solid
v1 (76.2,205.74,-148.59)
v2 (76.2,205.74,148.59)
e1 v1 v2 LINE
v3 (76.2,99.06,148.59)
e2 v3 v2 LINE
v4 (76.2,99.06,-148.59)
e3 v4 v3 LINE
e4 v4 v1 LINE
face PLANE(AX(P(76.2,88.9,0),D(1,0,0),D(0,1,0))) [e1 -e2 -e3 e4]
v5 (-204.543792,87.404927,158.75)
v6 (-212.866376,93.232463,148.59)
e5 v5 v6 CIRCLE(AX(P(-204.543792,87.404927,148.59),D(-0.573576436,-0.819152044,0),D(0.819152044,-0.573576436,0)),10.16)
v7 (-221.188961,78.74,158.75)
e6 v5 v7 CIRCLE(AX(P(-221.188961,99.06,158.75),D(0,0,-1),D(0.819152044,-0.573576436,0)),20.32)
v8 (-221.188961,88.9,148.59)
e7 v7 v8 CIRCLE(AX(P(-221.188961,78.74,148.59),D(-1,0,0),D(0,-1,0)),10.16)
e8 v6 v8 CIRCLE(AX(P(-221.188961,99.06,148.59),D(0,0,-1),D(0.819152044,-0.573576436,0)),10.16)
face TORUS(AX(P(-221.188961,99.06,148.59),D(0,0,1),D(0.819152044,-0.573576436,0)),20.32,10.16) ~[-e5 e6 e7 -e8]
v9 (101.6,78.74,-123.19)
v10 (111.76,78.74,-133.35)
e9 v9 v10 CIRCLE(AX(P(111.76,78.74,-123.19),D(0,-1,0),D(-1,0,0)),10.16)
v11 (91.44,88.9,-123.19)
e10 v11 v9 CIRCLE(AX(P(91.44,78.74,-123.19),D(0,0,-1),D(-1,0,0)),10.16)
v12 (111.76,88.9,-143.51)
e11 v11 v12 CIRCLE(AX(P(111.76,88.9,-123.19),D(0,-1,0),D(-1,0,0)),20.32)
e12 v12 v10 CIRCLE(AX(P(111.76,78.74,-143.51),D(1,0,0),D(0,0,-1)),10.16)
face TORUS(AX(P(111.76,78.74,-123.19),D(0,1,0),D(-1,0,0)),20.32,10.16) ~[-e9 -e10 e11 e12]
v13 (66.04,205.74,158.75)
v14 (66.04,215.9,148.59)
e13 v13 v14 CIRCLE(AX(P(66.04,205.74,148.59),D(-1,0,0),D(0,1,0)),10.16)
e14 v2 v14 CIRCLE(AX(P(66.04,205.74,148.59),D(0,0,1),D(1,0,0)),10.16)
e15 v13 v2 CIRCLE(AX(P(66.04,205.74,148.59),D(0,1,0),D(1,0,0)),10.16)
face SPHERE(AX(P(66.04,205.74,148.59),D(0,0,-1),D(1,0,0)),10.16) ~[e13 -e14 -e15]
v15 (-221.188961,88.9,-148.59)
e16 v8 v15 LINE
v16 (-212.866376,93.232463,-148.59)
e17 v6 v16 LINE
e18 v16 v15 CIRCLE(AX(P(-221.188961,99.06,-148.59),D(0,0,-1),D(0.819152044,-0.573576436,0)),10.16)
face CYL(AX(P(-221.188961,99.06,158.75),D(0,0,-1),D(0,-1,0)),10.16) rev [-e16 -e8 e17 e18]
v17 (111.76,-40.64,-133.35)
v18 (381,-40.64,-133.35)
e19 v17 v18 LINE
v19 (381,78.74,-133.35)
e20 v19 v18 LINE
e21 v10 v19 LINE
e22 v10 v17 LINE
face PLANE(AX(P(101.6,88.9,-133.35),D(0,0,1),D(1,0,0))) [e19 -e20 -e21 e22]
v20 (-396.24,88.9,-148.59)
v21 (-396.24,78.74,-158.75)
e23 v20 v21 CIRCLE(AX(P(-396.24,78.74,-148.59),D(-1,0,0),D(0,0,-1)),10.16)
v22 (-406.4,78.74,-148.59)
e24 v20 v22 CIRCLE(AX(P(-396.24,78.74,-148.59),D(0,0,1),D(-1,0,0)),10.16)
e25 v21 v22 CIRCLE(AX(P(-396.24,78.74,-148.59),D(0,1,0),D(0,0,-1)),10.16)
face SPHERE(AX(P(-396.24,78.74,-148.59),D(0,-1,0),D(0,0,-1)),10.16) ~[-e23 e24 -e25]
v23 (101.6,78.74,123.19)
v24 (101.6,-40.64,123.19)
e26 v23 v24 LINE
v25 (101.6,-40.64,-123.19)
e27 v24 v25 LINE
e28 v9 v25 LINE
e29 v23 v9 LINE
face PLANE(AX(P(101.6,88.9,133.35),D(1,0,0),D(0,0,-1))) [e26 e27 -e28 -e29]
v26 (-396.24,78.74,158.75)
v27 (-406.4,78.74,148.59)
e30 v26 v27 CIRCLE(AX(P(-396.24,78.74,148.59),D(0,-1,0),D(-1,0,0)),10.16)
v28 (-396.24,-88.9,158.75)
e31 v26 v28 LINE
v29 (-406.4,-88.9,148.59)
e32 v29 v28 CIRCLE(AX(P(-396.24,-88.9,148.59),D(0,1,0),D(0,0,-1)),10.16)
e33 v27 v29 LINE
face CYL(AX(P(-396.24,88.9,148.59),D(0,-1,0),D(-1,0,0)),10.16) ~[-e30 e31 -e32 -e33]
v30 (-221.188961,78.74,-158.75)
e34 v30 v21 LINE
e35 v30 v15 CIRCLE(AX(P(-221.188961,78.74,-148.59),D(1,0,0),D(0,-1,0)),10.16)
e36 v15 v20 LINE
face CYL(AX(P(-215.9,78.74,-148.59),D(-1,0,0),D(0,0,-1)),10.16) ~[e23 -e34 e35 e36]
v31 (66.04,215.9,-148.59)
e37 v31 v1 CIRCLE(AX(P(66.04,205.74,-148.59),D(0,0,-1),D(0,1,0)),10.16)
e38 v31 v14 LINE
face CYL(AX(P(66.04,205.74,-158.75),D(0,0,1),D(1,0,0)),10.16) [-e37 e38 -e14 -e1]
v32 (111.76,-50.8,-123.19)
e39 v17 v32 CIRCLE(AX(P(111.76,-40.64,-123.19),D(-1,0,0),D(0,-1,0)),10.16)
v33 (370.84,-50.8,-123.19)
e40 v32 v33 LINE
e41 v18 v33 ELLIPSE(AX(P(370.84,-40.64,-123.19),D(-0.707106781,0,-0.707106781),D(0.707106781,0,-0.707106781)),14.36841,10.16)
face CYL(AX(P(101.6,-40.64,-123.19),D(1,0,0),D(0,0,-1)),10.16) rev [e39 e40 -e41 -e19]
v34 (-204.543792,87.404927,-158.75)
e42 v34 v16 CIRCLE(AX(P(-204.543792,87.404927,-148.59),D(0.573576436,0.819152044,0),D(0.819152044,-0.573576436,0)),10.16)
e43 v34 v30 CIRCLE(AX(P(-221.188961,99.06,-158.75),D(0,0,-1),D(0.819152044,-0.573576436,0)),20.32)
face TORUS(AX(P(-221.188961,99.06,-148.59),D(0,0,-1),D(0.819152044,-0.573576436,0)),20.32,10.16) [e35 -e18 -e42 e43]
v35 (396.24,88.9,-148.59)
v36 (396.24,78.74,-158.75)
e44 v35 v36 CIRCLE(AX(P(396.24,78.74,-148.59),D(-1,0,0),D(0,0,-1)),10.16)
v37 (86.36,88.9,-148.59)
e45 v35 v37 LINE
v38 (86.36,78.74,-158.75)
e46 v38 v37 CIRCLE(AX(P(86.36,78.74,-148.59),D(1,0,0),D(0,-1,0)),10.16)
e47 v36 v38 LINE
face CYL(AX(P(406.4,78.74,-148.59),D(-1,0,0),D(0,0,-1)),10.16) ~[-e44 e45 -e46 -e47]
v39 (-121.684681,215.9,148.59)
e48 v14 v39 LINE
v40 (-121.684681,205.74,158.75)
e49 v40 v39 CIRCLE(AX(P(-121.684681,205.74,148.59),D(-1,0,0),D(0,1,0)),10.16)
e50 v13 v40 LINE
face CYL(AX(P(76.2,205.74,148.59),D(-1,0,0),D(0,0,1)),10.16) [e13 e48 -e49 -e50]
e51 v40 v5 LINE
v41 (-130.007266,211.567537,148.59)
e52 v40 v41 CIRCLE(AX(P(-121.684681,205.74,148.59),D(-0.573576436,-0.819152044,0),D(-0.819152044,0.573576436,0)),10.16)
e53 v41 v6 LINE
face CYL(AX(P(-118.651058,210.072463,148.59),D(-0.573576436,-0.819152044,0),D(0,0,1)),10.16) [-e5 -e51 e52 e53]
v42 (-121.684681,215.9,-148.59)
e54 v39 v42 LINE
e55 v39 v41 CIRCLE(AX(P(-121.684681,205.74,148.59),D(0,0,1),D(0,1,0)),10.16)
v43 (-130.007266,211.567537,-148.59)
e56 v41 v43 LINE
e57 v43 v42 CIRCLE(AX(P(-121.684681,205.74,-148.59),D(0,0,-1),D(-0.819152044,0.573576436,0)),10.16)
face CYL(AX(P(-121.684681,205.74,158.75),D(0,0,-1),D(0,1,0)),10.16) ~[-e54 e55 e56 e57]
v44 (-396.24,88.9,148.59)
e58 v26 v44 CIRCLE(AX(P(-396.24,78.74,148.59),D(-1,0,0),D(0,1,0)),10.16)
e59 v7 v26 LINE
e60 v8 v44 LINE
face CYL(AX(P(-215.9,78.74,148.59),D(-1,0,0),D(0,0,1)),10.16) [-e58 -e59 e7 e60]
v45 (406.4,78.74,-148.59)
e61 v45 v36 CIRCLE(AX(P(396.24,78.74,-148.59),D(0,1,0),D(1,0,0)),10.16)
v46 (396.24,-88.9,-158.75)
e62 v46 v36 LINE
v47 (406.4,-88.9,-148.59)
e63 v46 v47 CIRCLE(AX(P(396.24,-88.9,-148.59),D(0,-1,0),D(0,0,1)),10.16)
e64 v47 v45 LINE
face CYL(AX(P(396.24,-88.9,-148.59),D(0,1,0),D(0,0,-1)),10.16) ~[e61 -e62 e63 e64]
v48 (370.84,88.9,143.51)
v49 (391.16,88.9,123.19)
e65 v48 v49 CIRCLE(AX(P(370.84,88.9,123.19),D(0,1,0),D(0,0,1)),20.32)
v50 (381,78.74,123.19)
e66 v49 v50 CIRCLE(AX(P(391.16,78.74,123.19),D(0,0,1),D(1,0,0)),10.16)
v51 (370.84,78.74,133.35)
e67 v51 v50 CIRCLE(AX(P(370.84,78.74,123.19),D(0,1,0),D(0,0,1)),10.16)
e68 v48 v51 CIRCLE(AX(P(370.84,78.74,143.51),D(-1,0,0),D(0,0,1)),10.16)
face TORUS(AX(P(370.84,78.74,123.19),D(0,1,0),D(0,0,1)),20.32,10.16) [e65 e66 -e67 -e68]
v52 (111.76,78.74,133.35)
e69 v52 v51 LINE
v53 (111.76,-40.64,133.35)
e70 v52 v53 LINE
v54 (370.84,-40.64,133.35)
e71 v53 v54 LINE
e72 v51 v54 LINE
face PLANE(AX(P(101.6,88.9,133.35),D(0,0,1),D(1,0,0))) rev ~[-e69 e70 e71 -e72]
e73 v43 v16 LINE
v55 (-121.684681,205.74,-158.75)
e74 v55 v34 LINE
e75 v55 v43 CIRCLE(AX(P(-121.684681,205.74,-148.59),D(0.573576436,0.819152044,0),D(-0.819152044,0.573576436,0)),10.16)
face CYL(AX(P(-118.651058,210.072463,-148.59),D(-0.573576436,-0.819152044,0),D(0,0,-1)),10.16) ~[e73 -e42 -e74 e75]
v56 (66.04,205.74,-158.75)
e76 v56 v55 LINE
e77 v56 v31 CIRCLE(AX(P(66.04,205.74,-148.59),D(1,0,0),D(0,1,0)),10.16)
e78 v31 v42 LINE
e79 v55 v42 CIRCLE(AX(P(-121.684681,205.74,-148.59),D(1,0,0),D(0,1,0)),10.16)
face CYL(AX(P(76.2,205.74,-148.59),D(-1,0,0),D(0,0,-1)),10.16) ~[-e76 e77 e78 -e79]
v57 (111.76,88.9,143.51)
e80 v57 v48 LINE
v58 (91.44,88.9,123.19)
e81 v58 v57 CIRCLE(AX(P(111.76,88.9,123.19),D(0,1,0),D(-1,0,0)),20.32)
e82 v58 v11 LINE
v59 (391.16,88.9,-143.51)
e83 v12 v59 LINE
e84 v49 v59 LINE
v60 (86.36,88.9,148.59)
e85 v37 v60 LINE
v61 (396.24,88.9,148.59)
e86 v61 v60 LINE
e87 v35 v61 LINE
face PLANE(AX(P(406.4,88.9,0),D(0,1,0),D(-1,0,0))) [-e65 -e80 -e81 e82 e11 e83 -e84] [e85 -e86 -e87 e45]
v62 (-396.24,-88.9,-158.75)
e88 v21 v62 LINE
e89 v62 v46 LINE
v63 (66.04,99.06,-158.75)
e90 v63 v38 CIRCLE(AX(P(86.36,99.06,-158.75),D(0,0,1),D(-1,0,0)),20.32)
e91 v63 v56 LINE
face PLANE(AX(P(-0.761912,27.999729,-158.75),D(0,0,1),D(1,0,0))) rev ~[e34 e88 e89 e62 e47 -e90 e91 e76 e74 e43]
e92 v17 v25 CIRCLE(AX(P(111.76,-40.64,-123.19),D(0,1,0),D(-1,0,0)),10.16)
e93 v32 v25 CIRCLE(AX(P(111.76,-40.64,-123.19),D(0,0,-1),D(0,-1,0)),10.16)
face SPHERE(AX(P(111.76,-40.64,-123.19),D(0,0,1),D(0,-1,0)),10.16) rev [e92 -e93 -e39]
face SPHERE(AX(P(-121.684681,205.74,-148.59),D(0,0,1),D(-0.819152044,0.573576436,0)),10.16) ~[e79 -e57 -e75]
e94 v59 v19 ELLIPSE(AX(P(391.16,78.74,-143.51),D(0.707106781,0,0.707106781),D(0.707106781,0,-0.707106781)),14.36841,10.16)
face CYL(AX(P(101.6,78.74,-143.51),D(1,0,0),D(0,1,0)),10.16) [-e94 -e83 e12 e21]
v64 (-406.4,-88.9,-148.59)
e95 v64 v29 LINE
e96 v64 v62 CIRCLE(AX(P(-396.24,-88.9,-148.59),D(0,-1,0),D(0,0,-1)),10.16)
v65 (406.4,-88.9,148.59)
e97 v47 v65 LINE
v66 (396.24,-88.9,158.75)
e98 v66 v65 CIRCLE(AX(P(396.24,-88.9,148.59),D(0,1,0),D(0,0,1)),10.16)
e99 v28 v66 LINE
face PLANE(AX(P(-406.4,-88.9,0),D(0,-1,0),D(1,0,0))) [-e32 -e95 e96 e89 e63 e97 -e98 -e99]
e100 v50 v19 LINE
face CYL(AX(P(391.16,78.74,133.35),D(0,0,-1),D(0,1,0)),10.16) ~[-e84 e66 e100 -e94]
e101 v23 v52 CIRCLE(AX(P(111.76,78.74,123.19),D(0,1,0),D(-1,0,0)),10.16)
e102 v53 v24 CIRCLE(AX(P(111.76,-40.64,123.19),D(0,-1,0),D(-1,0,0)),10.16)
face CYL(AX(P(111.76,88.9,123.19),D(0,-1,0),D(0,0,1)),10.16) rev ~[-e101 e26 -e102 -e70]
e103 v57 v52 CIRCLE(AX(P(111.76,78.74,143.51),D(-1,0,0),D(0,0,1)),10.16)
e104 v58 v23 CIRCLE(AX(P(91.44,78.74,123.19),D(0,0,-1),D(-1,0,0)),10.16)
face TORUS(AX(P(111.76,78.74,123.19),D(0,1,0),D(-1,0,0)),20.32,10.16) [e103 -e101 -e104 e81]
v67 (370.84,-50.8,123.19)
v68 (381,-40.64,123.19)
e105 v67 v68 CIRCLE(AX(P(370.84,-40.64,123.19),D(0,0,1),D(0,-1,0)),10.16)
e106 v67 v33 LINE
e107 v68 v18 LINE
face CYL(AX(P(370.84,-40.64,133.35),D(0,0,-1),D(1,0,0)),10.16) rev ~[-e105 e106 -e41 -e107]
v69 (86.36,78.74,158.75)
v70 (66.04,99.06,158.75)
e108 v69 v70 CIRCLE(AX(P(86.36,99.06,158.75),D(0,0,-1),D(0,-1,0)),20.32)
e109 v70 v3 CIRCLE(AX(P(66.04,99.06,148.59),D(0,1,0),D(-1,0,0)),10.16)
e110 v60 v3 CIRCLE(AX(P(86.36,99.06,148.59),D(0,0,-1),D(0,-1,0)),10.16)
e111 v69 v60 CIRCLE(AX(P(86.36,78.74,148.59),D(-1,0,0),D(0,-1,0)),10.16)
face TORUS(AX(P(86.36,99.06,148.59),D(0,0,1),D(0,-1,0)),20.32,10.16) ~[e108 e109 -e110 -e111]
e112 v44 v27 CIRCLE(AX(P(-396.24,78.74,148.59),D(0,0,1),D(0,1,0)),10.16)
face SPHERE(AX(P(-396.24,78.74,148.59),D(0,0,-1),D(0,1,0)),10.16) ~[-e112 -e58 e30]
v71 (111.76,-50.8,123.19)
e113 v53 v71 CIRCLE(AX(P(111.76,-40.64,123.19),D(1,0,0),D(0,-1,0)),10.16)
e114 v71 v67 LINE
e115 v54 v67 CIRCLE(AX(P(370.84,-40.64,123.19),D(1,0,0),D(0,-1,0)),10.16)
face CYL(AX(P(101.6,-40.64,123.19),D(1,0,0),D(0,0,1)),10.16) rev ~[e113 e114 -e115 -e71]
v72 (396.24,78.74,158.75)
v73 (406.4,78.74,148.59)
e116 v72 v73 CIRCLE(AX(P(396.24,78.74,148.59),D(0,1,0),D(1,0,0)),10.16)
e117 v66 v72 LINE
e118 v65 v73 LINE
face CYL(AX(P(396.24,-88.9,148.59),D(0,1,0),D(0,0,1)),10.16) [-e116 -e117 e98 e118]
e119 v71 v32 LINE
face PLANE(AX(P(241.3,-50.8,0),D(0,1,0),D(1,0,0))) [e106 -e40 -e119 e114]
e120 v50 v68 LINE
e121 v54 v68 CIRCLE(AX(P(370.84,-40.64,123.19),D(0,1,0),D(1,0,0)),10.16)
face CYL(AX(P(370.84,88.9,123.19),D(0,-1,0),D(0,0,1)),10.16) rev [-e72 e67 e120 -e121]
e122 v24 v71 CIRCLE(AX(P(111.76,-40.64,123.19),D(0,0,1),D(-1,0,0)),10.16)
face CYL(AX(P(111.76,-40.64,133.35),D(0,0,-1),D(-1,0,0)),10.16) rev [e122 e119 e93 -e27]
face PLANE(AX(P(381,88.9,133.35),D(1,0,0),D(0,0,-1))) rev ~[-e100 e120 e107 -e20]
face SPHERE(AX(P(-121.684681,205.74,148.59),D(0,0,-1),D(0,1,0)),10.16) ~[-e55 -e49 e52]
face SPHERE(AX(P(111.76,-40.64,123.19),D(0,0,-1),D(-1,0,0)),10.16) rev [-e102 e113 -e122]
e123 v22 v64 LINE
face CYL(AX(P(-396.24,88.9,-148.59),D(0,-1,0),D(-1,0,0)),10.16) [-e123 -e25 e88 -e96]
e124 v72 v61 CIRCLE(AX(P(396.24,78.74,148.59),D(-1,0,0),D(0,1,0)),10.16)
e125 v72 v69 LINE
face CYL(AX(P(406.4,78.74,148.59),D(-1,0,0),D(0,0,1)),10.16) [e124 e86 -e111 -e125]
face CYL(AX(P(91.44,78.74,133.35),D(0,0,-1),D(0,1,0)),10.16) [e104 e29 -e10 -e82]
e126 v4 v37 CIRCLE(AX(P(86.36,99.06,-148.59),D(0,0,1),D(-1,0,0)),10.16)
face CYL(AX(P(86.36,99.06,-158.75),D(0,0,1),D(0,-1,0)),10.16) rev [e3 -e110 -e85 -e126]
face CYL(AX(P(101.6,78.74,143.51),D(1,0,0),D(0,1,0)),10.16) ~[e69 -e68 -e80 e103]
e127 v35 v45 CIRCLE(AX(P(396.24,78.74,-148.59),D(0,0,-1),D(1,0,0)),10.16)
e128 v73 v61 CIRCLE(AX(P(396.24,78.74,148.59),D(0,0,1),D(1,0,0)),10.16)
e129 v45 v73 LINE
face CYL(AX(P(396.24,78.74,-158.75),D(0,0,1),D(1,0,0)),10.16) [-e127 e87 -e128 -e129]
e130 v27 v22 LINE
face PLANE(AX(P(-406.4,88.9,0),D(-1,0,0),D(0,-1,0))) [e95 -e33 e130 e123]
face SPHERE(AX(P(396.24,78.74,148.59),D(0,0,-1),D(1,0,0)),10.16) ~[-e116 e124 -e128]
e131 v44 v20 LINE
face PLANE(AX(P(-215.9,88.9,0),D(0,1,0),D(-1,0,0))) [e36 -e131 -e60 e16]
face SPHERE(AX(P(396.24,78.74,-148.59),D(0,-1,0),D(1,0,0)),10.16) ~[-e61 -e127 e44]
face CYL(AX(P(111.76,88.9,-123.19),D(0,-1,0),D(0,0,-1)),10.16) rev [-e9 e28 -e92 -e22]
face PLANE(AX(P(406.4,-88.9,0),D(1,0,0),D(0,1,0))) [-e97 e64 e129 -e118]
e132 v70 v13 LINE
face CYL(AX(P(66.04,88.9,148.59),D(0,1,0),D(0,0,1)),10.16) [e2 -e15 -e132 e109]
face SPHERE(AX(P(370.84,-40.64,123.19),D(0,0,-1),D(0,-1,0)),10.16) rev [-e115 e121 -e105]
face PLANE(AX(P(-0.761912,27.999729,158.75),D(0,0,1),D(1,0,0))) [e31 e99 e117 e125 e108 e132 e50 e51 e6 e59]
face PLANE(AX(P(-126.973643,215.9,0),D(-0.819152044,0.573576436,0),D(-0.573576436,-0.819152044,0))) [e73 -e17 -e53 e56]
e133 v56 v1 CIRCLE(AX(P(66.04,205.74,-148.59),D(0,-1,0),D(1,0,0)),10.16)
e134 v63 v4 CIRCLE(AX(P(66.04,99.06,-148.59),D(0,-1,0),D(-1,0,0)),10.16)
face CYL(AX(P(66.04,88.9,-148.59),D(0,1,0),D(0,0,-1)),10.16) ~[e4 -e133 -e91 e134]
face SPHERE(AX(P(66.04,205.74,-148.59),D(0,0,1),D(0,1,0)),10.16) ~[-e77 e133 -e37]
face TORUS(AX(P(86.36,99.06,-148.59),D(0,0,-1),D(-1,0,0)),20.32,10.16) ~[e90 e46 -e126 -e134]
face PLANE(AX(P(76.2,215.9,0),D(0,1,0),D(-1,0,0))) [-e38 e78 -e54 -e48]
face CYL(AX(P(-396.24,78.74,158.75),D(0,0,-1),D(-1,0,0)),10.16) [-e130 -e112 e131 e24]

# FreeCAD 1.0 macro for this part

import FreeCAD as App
import Part
import Sketcher
from FreeCAD import Vector
Q = App.Units.Quantity


def edges_at(feature, points):
    """Names of the edges that pass closest to the given points."""
    edges = feature.Shape.Edges
    near = lambda p: min(range(len(edges)), key=lambda i: edges[i].distToShape(Part.Vertex(*p))[0])
    return sorted({f"Edge{near(p) + 1}" for p in points})

doc = App.newDocument("Part")
body = doc.addObject("PartDesign::Body", "Body")

# Sketch on XY plane
sketch1 = body.newObject("Sketcher::SketchObject", "Sketch")
sketch1.AttachmentSupport = (doc.getObject("XY_Plane"), [""])
sketch1.MapMode = "FlatFace"
sketch1.addGeometry(Part.LineSegment(Vector(-406, 89, 0), Vector(-406, -89, 0)), False)
sketch1.addGeometry(Part.LineSegment(Vector(-406, -89, 0), Vector(406, -89, 0)), False)
sketch1.addGeometry(Part.LineSegment(Vector(406, -89, 0), Vector(406, 89, 0)), False)
sketch1.addGeometry(Part.LineSegment(Vector(406, 89, 0), Vector(76, 89, 0)), False)
sketch1.addGeometry(Part.LineSegment(Vector(76, 89, 0), Vector(76, 216, 0)), False)
sketch1.addGeometry(Part.LineSegment(Vector(76, 216, 0), Vector(-127, 216, 0)), False)
sketch1.addGeometry(Part.LineSegment(Vector(-127, 216, 0), Vector(-216, 89, 0)), False)
sketch1.addGeometry(Part.LineSegment(Vector(-216, 89, 0), Vector(-406, 89, 0)), False)
sketch1.addConstraint(Sketcher.Constraint("Coincident", 0, 2, 1, 1))
sketch1.addConstraint(Sketcher.Constraint("Coincident", 1, 2, 2, 1))
sketch1.addConstraint(Sketcher.Constraint("Coincident", 2, 2, 3, 1))
sketch1.addConstraint(Sketcher.Constraint("Coincident", 3, 2, 4, 1))
sketch1.addConstraint(Sketcher.Constraint("Coincident", 4, 2, 5, 1))
sketch1.addConstraint(Sketcher.Constraint("Coincident", 5, 2, 6, 1))
sketch1.addConstraint(Sketcher.Constraint("Coincident", 6, 2, 7, 1))
sketch1.addConstraint(Sketcher.Constraint("Coincident", 7, 2, 0, 1))
sketch1.addConstraint(Sketcher.Constraint("Vertical", 0))
sketch1.addConstraint(Sketcher.Constraint("Horizontal", 1))
sketch1.addConstraint(Sketcher.Constraint("Vertical", 2))
sketch1.addConstraint(Sketcher.Constraint("Horizontal", 3))
sketch1.addConstraint(Sketcher.Constraint("Vertical", 4))
sketch1.addConstraint(Sketcher.Constraint("Horizontal", 5))
sketch1.addConstraint(Sketcher.Constraint("Horizontal", 7))
sketch1.addConstraint(Sketcher.Constraint("Symmetric", 0, 2, 2, 2, -1, 1))
sketch1.addConstraint(Sketcher.Constraint("Horizontal", 3, 2, 6, 2))
sketch1.addConstraint(Sketcher.Constraint("DistanceX", 1, 1, 1, 2, Q("32 in")))
sketch1.addConstraint(Sketcher.Constraint("DistanceX", 3, 2, 3, 1, Q("13 in")))
sketch1.addConstraint(Sketcher.Constraint("DistanceY", 0, 2, 0, 1, Q("7 in")))
sketch1.addConstraint(Sketcher.Constraint("DistanceY", 4, 1, 4, 2, Q("5 in")))
sketch1.addConstraint(Sketcher.Constraint("DistanceX", 7, 2, 7, 1, Q("7.5 in")))
sketch1.addConstraint(Sketcher.Constraint("Angle", 6, Q("-125 deg")))
pad1 = body.newObject("PartDesign::Pad", "Pad")
pad1.Profile = sketch1
pad1.Length = Q("12.5 in")
pad1.Midplane = True

# Sketch on XZ plane
sketch2 = body.newObject("Sketcher::SketchObject", "Sketch001")
sketch2.AttachmentSupport = (doc.getObject("XZ_Plane"), [""])
sketch2.MapMode = "FlatFace"
sketch2.AttachmentOffset = App.Placement(Vector(0, 0, -3.5 * 25.4), App.Rotation())
sketch2.addGeometry(Part.LineSegment(Vector(102, -133, 0), Vector(102, 133, 0)), False)
sketch2.addGeometry(Part.LineSegment(Vector(102, 133, 0), Vector(381, 133, 0)), False)
sketch2.addGeometry(Part.LineSegment(Vector(381, 133, 0), Vector(381, -133, 0)), False)
sketch2.addGeometry(Part.LineSegment(Vector(381, -133, 0), Vector(102, -133, 0)), False)
sketch2.addConstraint(Sketcher.Constraint("Coincident", 0, 2, 1, 1))
sketch2.addConstraint(Sketcher.Constraint("Coincident", 1, 2, 2, 1))
sketch2.addConstraint(Sketcher.Constraint("Coincident", 2, 2, 3, 1))
sketch2.addConstraint(Sketcher.Constraint("Coincident", 3, 2, 0, 1))
sketch2.addConstraint(Sketcher.Constraint("Vertical", 0))
sketch2.addConstraint(Sketcher.Constraint("Horizontal", 1))
sketch2.addConstraint(Sketcher.Constraint("Vertical", 2))
sketch2.addConstraint(Sketcher.Constraint("Horizontal", 3))
sketch2.addConstraint(Sketcher.Constraint("DistanceX", 1, 1, 1, 2, Q("11 in")))
sketch2.addConstraint(Sketcher.Constraint("DistanceY", 0, 1, 0, 2, Q("10.5 in")))
sketch2.addConstraint(Sketcher.Constraint("DistanceX", -1, 1, 0, 2, Q("4 in")))
sketch2.addConstraint(Sketcher.Constraint("DistanceY", -1, 1, 0, 2, Q("5.25 in")))
pocket1 = body.newObject("PartDesign::Pocket", "Pocket")
pocket1.Profile = sketch2
pocket1.Length = Q("5.5 in")
pocket1.Reversed = True
doc.recompute()

fillet = body.newObject("PartDesign::Fillet", "Fillet")
fillet.Base = (pocket1, edges_at(pocket1, [
    (406.4, 0, -158.75),
    (-406.4, 0, -158.75),
    (-311.15, 88.9, -158.75),
    (-215.9, 88.9, 0),
    (-126.974, 215.9, 0),
    (76.2, 215.9, 0),
    (76.2, 88.9, 0),
    (406.4, 88.9, 0),
    (-406.4, 88.9, 0),
    (406.4, 0, 158.75),
    (241.3, 88.9, 158.75),
    (76.2, 152.4, 158.75),
    (101.6, -50.8, 0),
    (101.6, 19.05, 133.35),
    (241.3, -50.8, -133.35),
    (101.6, 19.05, -133.35),
    (381, -50.8, 0),
    (241.3, -50.8, 133.35),
    (-25.387, 215.9, 158.75),
    (381, 19.05, 133.35),
    (101.6, 88.9, 0),
    (241.3, 88.9, 133.35),
    (381, 88.9, 0),
    (241.3, 88.9, -133.35),
    (-171.437, 152.4, 158.75),
    (-311.15, 88.9, 158.75),
    (-171.437, 152.4, -158.75),
    (-406.4, 0, 158.75),
    (-25.387, 215.9, -158.75),
    (76.2, 152.4, -158.75),
    (241.3, 88.9, -158.75),
]))
fillet.Radius = Q("0.4 in")

doc.recompute()
